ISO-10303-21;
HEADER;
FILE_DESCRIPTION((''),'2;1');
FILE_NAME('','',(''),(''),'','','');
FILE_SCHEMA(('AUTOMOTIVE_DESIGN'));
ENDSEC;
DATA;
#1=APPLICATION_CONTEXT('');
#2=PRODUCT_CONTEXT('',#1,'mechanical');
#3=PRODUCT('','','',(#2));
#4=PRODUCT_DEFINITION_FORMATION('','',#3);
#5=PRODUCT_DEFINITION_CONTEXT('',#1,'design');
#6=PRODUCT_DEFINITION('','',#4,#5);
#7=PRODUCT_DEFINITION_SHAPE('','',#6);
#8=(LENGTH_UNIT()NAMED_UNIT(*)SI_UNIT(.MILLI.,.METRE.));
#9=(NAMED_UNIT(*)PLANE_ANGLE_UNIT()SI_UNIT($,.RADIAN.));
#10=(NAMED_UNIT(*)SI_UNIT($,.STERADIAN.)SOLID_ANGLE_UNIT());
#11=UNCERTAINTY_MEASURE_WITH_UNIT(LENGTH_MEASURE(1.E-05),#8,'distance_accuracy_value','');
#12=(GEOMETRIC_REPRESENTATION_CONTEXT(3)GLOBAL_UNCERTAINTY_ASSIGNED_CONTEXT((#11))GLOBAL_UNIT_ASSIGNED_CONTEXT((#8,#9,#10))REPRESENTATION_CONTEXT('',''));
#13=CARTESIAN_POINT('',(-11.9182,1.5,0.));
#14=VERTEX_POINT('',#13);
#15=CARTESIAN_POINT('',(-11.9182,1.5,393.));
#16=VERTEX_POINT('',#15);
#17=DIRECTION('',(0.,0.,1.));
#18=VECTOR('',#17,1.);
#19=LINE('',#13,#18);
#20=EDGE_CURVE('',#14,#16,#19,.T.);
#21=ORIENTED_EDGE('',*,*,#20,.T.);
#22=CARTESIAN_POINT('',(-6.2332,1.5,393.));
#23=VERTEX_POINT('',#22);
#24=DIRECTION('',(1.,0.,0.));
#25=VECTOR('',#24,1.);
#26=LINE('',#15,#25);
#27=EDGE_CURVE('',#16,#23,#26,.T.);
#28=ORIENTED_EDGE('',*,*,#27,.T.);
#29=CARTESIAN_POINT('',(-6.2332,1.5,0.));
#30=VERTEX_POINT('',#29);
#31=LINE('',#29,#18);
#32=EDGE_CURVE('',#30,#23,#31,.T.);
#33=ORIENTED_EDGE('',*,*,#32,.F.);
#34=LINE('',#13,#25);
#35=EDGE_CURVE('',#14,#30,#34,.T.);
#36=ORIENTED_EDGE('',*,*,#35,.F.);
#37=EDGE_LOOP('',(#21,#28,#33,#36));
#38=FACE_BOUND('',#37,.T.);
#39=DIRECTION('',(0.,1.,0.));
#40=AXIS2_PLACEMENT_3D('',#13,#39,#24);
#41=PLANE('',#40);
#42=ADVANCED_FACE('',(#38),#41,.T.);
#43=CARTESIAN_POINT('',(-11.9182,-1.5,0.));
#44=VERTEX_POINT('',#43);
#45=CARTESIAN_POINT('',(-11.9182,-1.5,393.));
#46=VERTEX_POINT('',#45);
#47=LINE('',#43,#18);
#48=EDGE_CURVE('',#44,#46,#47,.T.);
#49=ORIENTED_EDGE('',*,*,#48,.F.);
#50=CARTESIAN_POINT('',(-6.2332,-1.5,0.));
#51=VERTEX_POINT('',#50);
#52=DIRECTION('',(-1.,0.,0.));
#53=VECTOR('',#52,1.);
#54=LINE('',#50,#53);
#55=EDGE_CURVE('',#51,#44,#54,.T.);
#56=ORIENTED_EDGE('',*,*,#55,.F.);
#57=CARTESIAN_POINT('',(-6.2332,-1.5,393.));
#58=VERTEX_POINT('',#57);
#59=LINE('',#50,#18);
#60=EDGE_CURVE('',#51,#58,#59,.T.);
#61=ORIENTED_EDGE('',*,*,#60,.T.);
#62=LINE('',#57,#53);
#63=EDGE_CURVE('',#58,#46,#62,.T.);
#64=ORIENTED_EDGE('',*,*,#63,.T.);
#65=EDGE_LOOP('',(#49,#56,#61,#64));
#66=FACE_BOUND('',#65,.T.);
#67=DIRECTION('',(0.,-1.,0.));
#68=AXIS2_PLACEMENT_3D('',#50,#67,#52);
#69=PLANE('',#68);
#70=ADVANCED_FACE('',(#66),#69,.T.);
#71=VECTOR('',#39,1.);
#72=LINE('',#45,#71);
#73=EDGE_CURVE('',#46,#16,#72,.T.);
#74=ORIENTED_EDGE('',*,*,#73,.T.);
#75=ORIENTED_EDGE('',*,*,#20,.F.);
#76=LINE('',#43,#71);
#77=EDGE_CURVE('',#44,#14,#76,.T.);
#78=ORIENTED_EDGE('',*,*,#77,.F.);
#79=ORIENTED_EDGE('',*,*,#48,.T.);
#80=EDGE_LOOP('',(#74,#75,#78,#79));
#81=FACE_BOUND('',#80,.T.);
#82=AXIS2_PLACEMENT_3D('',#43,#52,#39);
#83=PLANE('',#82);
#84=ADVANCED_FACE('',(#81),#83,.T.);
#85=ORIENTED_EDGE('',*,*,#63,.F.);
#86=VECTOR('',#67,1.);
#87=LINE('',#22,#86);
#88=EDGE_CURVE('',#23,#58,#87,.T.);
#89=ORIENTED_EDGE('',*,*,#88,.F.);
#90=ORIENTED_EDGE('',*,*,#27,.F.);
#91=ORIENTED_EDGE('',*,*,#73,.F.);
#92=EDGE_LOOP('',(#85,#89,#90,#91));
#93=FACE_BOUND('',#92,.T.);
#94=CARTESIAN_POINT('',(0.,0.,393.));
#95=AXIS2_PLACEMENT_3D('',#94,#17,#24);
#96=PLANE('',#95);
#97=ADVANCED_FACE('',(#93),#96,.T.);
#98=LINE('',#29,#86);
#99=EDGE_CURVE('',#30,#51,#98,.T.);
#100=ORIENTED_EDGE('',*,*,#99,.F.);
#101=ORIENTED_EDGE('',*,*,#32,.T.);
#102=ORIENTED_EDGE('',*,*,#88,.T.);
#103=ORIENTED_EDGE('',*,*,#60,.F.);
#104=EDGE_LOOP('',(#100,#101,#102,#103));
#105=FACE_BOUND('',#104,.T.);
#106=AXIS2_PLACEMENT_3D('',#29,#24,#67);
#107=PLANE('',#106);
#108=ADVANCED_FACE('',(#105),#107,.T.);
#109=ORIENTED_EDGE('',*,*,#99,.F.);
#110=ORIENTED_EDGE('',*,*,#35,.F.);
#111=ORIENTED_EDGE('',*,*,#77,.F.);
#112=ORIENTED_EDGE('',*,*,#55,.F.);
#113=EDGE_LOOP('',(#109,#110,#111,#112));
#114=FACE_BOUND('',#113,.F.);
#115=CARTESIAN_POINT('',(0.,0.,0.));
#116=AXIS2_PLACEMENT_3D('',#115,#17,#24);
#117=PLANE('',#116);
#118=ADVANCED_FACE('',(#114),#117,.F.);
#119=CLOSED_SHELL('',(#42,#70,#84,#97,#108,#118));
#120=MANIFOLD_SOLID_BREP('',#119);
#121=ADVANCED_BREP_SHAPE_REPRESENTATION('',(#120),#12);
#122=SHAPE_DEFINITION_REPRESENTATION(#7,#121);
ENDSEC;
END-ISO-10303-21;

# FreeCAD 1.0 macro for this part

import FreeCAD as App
import Part
import Sketcher
Q = App.Units.Quantity


def add_polygon(sketch, points):
    """Adds a closed chain of lines whose ends are joined by coincident constraints."""
    first, n = sketch.GeometryCount, len(points)
    for a, b in zip(points, points[1:] + points[:1]):
        sketch.addGeometry(Part.LineSegment(App.Vector(*a, 0), App.Vector(*b, 0)), False)
    for i in range(n):
        sketch.addConstraint(Sketcher.Constraint("Coincident", first + i, 2, first + (i + 1) % n, 1))

doc = App.newDocument("Part")
body = doc.addObject("PartDesign::Body", "Body")

# Sketch on XY plane
sketch1 = doc.addObject("Sketcher::SketchObject", "Sketch")
body.addObject(sketch1)
sketch1.AttachmentSupport = (doc.XY_Plane, [""])
sketch1.MapMode = "FlatFace"
add_polygon(sketch1, [(-6.2, 1.5), (-11.9, 1.5), (-11.9, -1.5), (-6.2, -1.5)])  # lines 0-3
sketch1.addConstraint([
    Sketcher.Constraint("Horizontal", 0),
    Sketcher.Constraint("Vertical", 1),
    Sketcher.Constraint("Horizontal", 2),
    Sketcher.Constraint("Vertical", 3),
    Sketcher.Constraint("DistanceY", 1, 2, 1, 1, Q("3 mm")),
    Sketcher.Constraint("DistanceX", 0, 2, 0, 1, Q("5.685 mm")),
    Sketcher.Constraint("DistanceY", -1, 1, 0, 2, Q("1.5 mm")),
    Sketcher.Constraint("DistanceX", 0, 2, -1, 1, Q("11.9182 mm")),
])
pad1 = doc.addObject("PartDesign::Pad", "Pad")
body.addObject(pad1)
pad1.Profile = sketch1
pad1.Length = 393

doc.recompute()
